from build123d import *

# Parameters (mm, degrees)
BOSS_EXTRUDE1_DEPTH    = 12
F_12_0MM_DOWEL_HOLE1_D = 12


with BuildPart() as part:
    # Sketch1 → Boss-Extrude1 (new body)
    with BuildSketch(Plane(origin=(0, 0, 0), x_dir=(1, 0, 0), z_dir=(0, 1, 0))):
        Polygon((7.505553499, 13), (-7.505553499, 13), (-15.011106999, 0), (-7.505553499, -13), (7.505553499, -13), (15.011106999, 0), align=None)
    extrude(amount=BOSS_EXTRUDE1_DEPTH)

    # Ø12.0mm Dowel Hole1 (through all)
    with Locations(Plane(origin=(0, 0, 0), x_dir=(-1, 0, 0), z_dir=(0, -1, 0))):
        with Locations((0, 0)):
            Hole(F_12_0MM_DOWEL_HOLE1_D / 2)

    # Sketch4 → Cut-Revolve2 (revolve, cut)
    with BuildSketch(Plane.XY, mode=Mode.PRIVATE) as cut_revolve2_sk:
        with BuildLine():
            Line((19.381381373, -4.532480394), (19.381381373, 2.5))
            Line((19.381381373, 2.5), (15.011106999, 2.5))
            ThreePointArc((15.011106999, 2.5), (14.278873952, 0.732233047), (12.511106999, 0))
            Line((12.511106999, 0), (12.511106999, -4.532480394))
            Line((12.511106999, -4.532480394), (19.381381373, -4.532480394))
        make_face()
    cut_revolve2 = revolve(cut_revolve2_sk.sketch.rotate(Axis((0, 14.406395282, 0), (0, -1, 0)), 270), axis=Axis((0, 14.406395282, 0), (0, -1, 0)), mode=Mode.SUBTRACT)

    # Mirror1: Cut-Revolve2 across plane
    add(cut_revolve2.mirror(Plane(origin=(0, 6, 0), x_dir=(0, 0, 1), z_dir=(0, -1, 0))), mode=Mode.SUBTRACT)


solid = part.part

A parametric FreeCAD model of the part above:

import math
import FreeCAD as App
import Part
import Sketcher
Q = App.Units.Quantity

doc = App.newDocument("Part")
body = doc.addObject("PartDesign::Body", "Body")

# Sketch on XZ plane
sketch1 = doc.addObject("Sketcher::SketchObject", "Sketch")
body.addObject(sketch1)
sketch1.AttachmentSupport = (doc.XZ_Plane, [""])
sketch1.MapMode = "FlatFace"
sketch1.addGeometry(Part.LineSegment(App.Vector(8, -13, 0), App.Vector(-8, -13, 0)), False)
sketch1.addGeometry(Part.LineSegment(App.Vector(-8, -13, 0), App.Vector(-15, 0, 0)), False)
sketch1.addGeometry(Part.LineSegment(App.Vector(-15, 0, 0), App.Vector(-8, 13, 0)), False)
sketch1.addGeometry(Part.LineSegment(App.Vector(-8, 13, 0), App.Vector(8, 13, 0)), False)
sketch1.addGeometry(Part.LineSegment(App.Vector(8, 13, 0), App.Vector(15, 0, 0)), False)
sketch1.addGeometry(Part.LineSegment(App.Vector(15, 0, 0), App.Vector(8, -13, 0)), False)
sketch1.addConstraint(Sketcher.Constraint("Coincident", 0, 2, 1, 1))
sketch1.addConstraint(Sketcher.Constraint("Coincident", 1, 2, 2, 1))
sketch1.addConstraint(Sketcher.Constraint("Coincident", 2, 2, 3, 1))
sketch1.addConstraint(Sketcher.Constraint("Coincident", 3, 2, 4, 1))
sketch1.addConstraint(Sketcher.Constraint("Coincident", 4, 2, 5, 1))
sketch1.addConstraint(Sketcher.Constraint("Coincident", 5, 2, 0, 1))
sketch1.addConstraint(Sketcher.Constraint("Horizontal", 0))
sketch1.addConstraint(Sketcher.Constraint("Horizontal", 3))
sketch1.addConstraint(Sketcher.Constraint("Symmetric", 0, 2, 3, 2, -1, 1))
sketch1.addConstraint(Sketcher.Constraint("Symmetric", 1, 2, 4, 2, -1, 1))
sketch1.addConstraint(Sketcher.Constraint("PointOnObject", 1, 2, -1))
sketch1.addConstraint(Sketcher.Constraint("Parallel", 2, 5))
sketch1.addConstraint(Sketcher.Constraint("Vertical", 0, 2, 2, 2))
sketch1.addConstraint(Sketcher.Constraint("Angle", 1, Q("120 deg")))
sketch1.addConstraint(Sketcher.Constraint("DistanceY", 0, 2, -1, 1, Q("13 mm")))
sketch1.addConstraint(Sketcher.Constraint("DistanceX", 0, 2, 0, 1, Q("15.011107 mm")))
pad1 = doc.addObject("PartDesign::Pad", "Pad")
body.addObject(pad1)
pad1.Profile = sketch1
pad1.Length = 12
pad1.Reversed = True

# Sketch on XZ plane
sketch2 = doc.addObject("Sketcher::SketchObject", "Sketch001")
body.addObject(sketch2)
sketch2.AttachmentSupport = (doc.XZ_Plane, [""])
sketch2.MapMode = "FlatFace"
sketch2.addGeometry(Part.Circle(App.Vector(0, 0, 0), App.Vector(0, 0, 1), 6), False)
sketch2.addConstraint(Sketcher.Constraint("Coincident", 0, 3, -1, 1))
sketch2.addConstraint(Sketcher.Constraint("Diameter", 0, Q("12 mm")))
doc.recompute()
hole = doc.addObject("PartDesign::Hole", "Hole")
body.addObject(hole)
hole.Profile = sketch2
hole.ThreadType = "None"
hole.Diameter = 12
hole.DepthType = "ThroughAll"

# Sketch on XY plane
sketch3 = doc.addObject("Sketcher::SketchObject", "Sketch002")
body.addObject(sketch3)
sketch3.AttachmentSupport = (doc.XY_Plane, [""])
sketch3.MapMode = "FlatFace"
sketch3.addGeometry(Part.LineSegment(App.Vector(19.4, -4.5, 0), App.Vector(19.4, 2.5, 0)), False)
sketch3.addGeometry(Part.LineSegment(App.Vector(19.4, 2.5, 0), App.Vector(15, 2.5, 0)), False)
sketch3.addGeometry(Part.ArcOfCircle(Part.Circle(App.Vector(12.5, 2.5, 0), App.Vector(0, 0, 1), 2.5), math.radians(-90), math.radians(0)), False)
sketch3.addGeometry(Part.LineSegment(App.Vector(12.5, 0, 0), App.Vector(12.5, -4.5, 0)), False)
sketch3.addGeometry(Part.LineSegment(App.Vector(12.5, -4.5, 0), App.Vector(19.4, -4.5, 0)), False)
sketch3.addConstraint(Sketcher.Constraint("Coincident", 0, 2, 1, 1))
sketch3.addConstraint(Sketcher.Constraint("Coincident", 1, 2, 2, 2))
sketch3.addConstraint(Sketcher.Constraint("Coincident", 2, 1, 3, 1))
sketch3.addConstraint(Sketcher.Constraint("Coincident", 3, 2, 4, 1))
sketch3.addConstraint(Sketcher.Constraint("Coincident", 4, 2, 0, 1))
sketch3.addConstraint(Sketcher.Constraint("Vertical", 0))
sketch3.addConstraint(Sketcher.Constraint("Horizontal", 1))
sketch3.addConstraint(Sketcher.Constraint("Vertical", 3))
sketch3.addConstraint(Sketcher.Constraint("Horizontal", 4))
sketch3.addConstraint(Sketcher.Constraint("PointOnObject", 2, 1, -1))
sketch3.addConstraint(Sketcher.Constraint("Horizontal", 2, 3, 0, 2))
sketch3.addConstraint(Sketcher.Constraint("Radius", 2, Q("2.5 mm")))
sketch3.addConstraint(Sketcher.Constraint("DistanceX", 2, 1, 1, 2, Q("2.5 mm")))
sketch3.addConstraint(Sketcher.Constraint("DistanceY", 0, 1, 0, 2, Q("7.03248 mm")))
sketch3.addConstraint(Sketcher.Constraint("DistanceX", 1, 2, 1, 1, Q("4.370274 mm")))
sketch3.addConstraint(Sketcher.Constraint("DistanceX", -1, 1, 0, 2, Q("19.381381 mm")))
groove = doc.addObject("PartDesign::Groove", "Groove")
body.addObject(groove)
groove.Profile = sketch3
groove.ReferenceAxis = (sketch3, ["V_Axis"])
groove.Angle = 360
doc.recompute()

datumplane = doc.addObject("PartDesign::Plane", "DatumPlane")
body.addObject(datumplane)
datumplane.AttachmentSupport = (doc.XZ_Plane, [""])
datumplane.MapMode = "FlatFace"
datumplane.AttachmentOffset = App.Placement(App.Vector(0, 0, -6), App.Rotation())
mirrored = doc.addObject("PartDesign::Mirrored", "Mirrored")
body.addObject(mirrored)
mirrored.Originals = [groove]
mirrored.MirrorPlane = (datumplane, [""])
body.Tip = mirrored

doc.recompute()
